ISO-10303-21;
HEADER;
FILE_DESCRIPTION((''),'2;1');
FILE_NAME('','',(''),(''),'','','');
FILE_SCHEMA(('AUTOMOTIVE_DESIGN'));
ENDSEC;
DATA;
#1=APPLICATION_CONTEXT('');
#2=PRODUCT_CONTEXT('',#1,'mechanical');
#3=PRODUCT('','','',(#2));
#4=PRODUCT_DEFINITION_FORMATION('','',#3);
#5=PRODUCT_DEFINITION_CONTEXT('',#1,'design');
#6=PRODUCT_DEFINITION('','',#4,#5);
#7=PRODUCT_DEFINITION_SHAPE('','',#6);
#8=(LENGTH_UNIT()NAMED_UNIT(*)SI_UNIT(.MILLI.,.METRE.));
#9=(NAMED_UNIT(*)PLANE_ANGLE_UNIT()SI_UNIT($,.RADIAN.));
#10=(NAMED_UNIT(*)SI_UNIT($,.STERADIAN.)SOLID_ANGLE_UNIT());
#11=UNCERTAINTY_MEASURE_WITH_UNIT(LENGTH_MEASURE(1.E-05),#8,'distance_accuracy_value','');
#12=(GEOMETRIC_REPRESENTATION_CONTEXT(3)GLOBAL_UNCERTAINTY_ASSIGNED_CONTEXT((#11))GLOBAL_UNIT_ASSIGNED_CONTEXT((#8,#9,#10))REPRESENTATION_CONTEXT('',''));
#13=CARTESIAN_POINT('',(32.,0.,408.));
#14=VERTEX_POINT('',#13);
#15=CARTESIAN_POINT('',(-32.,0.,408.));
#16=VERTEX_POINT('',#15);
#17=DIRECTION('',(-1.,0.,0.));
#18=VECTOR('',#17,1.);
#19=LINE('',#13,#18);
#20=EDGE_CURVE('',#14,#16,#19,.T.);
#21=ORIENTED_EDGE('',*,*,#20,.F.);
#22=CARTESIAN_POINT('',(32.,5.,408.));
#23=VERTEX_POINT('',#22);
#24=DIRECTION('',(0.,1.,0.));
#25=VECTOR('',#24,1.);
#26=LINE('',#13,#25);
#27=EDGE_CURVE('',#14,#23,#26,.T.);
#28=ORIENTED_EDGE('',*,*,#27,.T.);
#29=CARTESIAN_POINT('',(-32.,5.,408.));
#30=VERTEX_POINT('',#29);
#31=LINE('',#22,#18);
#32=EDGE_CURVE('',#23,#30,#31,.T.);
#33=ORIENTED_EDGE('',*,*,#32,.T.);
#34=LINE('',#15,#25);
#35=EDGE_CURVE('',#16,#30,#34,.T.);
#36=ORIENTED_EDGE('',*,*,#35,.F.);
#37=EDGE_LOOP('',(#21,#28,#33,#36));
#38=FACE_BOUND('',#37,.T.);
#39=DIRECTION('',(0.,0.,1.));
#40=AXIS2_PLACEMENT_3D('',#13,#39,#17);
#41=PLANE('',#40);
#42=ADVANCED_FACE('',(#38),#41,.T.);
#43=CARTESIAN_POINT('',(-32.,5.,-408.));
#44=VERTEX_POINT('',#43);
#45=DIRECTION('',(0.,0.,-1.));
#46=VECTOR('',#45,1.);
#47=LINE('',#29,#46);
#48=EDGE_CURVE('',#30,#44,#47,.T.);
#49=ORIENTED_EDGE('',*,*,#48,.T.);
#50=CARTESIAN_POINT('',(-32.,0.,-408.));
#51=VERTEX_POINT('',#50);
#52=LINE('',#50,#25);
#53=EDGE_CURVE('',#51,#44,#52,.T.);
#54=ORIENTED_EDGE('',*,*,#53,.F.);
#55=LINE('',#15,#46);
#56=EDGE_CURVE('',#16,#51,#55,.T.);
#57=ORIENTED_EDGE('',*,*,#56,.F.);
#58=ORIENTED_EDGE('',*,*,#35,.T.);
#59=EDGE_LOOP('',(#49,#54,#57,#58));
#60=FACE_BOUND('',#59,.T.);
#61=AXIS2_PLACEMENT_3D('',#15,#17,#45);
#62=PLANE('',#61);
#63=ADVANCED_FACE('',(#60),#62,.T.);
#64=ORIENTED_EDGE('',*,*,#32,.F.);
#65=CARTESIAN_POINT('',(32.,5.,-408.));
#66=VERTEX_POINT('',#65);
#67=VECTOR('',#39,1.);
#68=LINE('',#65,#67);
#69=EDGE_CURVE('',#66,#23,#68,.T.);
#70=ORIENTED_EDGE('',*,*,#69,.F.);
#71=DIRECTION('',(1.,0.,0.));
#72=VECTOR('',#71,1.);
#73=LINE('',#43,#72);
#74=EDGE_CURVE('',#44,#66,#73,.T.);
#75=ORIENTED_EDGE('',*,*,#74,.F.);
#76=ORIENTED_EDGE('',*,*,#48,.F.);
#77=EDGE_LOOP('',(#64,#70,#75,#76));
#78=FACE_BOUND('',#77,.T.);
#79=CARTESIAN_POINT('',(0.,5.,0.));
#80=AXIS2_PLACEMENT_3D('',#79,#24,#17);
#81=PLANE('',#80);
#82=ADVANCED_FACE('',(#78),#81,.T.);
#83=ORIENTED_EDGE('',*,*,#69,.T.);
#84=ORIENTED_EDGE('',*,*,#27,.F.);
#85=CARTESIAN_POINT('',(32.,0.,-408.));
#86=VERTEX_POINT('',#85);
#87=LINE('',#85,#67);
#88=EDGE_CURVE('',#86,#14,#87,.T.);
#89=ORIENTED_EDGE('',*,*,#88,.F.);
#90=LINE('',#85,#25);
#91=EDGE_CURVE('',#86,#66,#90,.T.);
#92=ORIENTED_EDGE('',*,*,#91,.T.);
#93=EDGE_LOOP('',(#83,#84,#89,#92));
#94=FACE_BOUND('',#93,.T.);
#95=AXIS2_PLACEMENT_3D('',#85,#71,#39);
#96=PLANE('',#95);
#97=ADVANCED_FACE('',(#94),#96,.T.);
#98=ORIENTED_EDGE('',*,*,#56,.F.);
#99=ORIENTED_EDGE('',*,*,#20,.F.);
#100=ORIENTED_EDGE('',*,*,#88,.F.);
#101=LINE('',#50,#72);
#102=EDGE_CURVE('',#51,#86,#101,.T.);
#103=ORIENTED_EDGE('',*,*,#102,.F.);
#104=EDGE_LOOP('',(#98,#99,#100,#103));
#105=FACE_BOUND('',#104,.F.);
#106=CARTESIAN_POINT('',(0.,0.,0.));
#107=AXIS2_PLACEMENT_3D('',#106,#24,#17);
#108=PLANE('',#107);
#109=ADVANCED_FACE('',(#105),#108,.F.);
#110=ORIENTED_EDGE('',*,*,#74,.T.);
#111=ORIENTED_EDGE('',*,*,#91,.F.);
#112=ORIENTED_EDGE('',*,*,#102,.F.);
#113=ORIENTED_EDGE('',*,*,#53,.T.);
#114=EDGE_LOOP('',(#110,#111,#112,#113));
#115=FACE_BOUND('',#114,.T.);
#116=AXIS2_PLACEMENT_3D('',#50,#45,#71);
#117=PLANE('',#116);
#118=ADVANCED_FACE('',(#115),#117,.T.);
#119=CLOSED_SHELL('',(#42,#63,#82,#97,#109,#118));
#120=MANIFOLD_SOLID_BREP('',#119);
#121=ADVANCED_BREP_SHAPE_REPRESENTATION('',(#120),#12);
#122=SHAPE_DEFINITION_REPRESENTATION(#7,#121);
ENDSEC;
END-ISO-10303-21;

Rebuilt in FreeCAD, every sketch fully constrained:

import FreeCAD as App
import Part
import Sketcher
from FreeCAD import Vector
Q = App.Units.Quantity

doc = App.newDocument("Part")
params = doc.addObject("Spreadsheet::Sheet", "Params")
for row, (alias, value) in enumerate([
    ("sketch1_width", "64 mm"),
    ("sketch1_height", "816 mm"),
    ("pad1_length", "5 mm"),
], start=1):
    params.set(f"A{row}", alias)
    params.set(f"B{row}", "=" + value)
    params.setAlias(f"B{row}", alias)

body = doc.addObject("PartDesign::Body", "Body")

# Sketch on XZ plane
sketch1 = body.newObject("Sketcher::SketchObject", "Sketch")
sketch1.AttachmentSupport = (doc.getObject("XZ_Plane"), [""])
sketch1.MapMode = "FlatFace"
sketch1.addGeometry(Part.LineSegment(Vector(-32, 408, 0), Vector(32, 408, 0)), False)
sketch1.addGeometry(Part.LineSegment(Vector(32, 408, 0), Vector(32, -408, 0)), False)
sketch1.addGeometry(Part.LineSegment(Vector(32, -408, 0), Vector(-32, -408, 0)), False)
sketch1.addGeometry(Part.LineSegment(Vector(-32, -408, 0), Vector(-32, 408, 0)), False)
sketch1.addConstraint(Sketcher.Constraint("Coincident", 0, 2, 1, 1))
sketch1.addConstraint(Sketcher.Constraint("Coincident", 1, 2, 2, 1))
sketch1.addConstraint(Sketcher.Constraint("Coincident", 2, 2, 3, 1))
sketch1.addConstraint(Sketcher.Constraint("Coincident", 3, 2, 0, 1))
sketch1.addConstraint(Sketcher.Constraint("Horizontal", 0))
sketch1.addConstraint(Sketcher.Constraint("Vertical", 1))
sketch1.addConstraint(Sketcher.Constraint("Horizontal", 2))
sketch1.addConstraint(Sketcher.Constraint("Vertical", 3))
sketch1.addConstraint(Sketcher.Constraint("Symmetric", 0, 2, 2, 2, -1, 1))
sketch1.addConstraint(Sketcher.Constraint("DistanceX", 0, 1, 0, 2, Q("64 mm")))
sketch1.addConstraint(Sketcher.Constraint("DistanceY", 1, 2, 1, 1, Q("816 mm")))
sketch1.setExpression("Constraints[9]", "Params.sketch1_width")
sketch1.setExpression("Constraints[10]", "Params.sketch1_height")
pad1 = body.newObject("PartDesign::Pad", "Pad")
pad1.Profile = sketch1
pad1.setExpression("Length", "Params.pad1_length")
pad1.Reversed = True

doc.recompute()
